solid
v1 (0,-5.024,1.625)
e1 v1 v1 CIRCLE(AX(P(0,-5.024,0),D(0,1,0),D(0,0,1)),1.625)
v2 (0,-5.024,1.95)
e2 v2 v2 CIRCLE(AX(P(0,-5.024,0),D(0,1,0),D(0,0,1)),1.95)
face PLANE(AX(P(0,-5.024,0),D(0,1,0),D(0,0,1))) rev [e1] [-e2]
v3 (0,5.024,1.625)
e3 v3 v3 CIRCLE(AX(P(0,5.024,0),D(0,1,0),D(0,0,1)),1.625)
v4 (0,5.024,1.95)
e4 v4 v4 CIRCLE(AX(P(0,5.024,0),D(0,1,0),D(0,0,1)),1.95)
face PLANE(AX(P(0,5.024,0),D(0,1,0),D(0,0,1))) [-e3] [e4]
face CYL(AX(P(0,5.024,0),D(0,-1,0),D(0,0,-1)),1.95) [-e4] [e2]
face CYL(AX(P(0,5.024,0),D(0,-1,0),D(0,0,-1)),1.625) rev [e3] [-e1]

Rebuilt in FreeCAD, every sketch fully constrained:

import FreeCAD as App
import Part
import Sketcher

doc = App.newDocument("Part")
body = doc.addObject("PartDesign::Body", "Body")

sketch1 = body.newObject("Sketcher::SketchObject", "Sketch")
sketch1.AttachmentSupport = (doc.getObject("XZ_Plane"), [""])
sketch1.MapMode = "FlatFace"
sketch1.addGeometry(Part.Circle(App.Vector(0, 0, 0), App.Vector(0, 0, 1), 1.9), False)
sketch1.addGeometry(Part.Circle(App.Vector(0, 0, 0), App.Vector(0, 0, 1), 1.6), False)
sketch1.addConstraint(Sketcher.Constraint("Coincident", 0, 3, -1, 1))
sketch1.addConstraint(Sketcher.Constraint("Coincident", 1, 3, -1, 1))
sketch1.addConstraint(Sketcher.Constraint("Diameter", 0, 3.9))
sketch1.addConstraint(Sketcher.Constraint("Diameter", 1, 3.25))
pad1 = body.newObject("PartDesign::Pad", "Pad")
pad1.Profile = sketch1
pad1.Length = 10.048
pad1.Midplane = True

doc.recompute()
